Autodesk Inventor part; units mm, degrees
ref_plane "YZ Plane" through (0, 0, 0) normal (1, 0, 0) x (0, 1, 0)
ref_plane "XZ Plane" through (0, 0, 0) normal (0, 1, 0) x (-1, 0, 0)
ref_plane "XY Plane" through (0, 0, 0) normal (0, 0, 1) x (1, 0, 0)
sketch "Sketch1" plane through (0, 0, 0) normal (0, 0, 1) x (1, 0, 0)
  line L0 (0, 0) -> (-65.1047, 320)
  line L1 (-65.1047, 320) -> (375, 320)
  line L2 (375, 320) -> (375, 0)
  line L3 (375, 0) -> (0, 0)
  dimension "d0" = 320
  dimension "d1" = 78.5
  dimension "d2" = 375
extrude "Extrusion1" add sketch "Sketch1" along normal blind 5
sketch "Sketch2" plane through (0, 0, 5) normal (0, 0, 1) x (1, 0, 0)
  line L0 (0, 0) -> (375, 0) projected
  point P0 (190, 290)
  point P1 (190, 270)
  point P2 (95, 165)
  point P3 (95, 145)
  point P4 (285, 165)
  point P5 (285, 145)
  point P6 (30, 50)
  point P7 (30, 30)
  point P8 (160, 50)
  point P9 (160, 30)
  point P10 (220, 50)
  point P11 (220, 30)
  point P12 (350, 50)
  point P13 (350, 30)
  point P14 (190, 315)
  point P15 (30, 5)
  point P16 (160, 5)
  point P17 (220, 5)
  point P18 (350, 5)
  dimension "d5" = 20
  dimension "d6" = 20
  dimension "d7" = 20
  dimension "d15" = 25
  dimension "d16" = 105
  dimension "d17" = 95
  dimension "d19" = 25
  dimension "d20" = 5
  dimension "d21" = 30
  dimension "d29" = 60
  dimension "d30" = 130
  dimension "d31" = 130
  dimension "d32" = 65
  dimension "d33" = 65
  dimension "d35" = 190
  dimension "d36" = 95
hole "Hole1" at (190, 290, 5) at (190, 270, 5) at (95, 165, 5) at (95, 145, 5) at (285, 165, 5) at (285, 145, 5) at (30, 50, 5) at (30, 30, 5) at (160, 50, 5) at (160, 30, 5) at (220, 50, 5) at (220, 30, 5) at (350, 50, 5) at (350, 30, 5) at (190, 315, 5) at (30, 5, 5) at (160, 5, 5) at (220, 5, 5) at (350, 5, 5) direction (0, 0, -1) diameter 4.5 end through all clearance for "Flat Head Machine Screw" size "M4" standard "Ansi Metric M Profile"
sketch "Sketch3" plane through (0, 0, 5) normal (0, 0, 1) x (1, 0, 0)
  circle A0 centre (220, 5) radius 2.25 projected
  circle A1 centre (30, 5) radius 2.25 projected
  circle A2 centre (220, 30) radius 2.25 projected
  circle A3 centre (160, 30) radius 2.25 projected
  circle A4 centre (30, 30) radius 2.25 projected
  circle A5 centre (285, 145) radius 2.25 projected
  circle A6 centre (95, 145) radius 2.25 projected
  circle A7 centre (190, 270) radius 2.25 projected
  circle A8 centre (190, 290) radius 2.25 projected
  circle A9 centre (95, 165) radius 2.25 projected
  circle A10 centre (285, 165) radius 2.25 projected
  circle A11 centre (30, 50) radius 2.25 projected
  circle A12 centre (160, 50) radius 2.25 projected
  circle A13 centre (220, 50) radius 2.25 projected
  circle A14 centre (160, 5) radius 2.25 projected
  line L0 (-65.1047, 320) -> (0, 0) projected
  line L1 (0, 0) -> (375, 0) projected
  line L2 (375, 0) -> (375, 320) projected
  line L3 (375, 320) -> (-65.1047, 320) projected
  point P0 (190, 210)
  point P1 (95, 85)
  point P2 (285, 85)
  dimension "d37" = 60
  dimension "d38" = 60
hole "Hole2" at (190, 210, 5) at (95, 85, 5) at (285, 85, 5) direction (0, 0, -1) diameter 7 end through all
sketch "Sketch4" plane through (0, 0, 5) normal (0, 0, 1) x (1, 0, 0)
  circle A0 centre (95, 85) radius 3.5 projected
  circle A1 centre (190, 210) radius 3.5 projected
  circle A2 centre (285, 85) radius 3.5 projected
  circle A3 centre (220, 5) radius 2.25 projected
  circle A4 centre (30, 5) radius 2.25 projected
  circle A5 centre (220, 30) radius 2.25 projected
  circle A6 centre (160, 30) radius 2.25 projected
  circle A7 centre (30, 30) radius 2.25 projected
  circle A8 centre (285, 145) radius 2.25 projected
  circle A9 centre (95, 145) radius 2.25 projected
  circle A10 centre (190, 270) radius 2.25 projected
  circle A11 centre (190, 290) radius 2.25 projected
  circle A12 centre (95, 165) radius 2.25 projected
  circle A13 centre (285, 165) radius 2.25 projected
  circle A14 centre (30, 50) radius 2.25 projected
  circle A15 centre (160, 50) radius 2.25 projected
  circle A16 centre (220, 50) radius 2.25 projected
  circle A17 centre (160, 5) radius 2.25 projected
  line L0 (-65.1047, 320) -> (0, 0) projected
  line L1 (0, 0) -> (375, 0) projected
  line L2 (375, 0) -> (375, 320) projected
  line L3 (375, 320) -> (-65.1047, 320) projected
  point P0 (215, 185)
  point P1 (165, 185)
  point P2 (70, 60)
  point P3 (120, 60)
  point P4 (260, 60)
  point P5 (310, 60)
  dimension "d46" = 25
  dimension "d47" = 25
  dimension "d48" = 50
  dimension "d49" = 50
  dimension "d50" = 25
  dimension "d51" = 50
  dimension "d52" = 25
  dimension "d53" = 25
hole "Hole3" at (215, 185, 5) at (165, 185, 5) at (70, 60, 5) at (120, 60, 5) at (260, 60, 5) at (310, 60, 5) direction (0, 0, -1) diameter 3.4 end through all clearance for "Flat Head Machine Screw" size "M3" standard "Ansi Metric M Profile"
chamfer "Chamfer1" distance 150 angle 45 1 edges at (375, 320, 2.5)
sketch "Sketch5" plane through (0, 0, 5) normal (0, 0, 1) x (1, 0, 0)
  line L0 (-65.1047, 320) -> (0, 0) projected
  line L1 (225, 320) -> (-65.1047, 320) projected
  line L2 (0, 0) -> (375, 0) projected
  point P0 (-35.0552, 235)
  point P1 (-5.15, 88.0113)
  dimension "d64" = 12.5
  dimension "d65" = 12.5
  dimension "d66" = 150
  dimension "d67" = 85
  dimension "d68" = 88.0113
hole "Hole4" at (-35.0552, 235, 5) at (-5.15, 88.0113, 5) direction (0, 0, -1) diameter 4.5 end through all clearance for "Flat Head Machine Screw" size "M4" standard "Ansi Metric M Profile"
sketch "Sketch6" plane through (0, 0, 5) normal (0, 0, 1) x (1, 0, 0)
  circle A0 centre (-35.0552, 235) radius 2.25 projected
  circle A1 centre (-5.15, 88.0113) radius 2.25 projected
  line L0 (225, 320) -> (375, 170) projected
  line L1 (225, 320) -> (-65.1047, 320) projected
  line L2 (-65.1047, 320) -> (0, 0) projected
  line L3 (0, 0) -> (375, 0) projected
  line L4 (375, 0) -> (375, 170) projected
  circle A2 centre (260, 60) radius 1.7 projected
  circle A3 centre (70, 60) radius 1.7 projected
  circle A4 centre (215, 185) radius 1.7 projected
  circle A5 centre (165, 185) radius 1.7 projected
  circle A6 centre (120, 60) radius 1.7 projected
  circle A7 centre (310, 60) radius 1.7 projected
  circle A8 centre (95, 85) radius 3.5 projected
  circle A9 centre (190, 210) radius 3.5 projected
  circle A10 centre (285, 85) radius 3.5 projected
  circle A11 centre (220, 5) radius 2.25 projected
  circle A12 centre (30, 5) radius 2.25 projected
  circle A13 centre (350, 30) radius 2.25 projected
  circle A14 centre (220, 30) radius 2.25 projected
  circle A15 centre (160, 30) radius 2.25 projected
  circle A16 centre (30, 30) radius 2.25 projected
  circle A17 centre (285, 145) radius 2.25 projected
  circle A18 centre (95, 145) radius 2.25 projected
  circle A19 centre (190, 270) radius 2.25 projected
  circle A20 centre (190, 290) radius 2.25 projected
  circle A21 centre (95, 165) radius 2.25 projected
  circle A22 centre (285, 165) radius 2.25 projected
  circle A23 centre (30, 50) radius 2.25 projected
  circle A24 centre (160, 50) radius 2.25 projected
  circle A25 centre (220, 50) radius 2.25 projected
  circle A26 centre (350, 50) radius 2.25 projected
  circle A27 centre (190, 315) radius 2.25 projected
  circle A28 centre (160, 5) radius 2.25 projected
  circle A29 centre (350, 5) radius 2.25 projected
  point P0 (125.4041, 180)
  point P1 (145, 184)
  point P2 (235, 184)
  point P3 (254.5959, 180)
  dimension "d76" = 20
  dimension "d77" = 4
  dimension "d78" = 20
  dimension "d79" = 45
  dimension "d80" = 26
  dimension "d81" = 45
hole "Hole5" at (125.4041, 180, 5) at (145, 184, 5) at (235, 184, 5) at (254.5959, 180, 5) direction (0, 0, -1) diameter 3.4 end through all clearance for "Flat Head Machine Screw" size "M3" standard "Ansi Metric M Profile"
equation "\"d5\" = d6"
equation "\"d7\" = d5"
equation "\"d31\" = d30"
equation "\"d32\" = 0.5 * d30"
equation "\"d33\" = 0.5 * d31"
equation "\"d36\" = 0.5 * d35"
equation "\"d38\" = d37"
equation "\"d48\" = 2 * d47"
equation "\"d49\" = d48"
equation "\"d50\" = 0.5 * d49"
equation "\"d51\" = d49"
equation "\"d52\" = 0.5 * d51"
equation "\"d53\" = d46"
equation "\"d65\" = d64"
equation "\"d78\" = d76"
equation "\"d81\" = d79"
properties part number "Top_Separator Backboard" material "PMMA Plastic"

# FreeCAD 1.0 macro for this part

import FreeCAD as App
import Part
import Sketcher
Q = App.Units.Quantity


def edges_at(feature, points):
    """Names of the edges that pass closest to the given points."""
    edges = feature.Shape.Edges
    near = lambda p: min(range(len(edges)), key=lambda i: edges[i].distToShape(Part.Vertex(*p))[0])
    return sorted({f"Edge{near(p) + 1}" for p in points})


def add_polygon(sketch, points):
    """Adds a closed chain of lines whose ends are joined by coincident constraints."""
    first, n = sketch.GeometryCount, len(points)
    for a, b in zip(points, points[1:] + points[:1]):
        sketch.addGeometry(Part.LineSegment(App.Vector(*a, 0), App.Vector(*b, 0)), False)
    for i in range(n):
        sketch.addConstraint(Sketcher.Constraint("Coincident", first + i, 2, first + (i + 1) % n, 1))

doc = App.newDocument("Part")
body = doc.addObject("PartDesign::Body", "Body")

# Sketch on XY plane
sketch1 = body.newObject("Sketcher::SketchObject", "Sketch")
sketch1.AttachmentSupport = (doc.getObject("XY_Plane"), [""])
sketch1.MapMode = "FlatFace"
add_polygon(sketch1, [(-65, 320), (0, 0), (375, 0), (375, 320)])  # lines 0-3
sketch1.addConstraint(Sketcher.Constraint("Horizontal", 1))
sketch1.addConstraint(Sketcher.Constraint("Vertical", 2))
sketch1.addConstraint(Sketcher.Constraint("Horizontal", 3))
sketch1.addConstraint(Sketcher.Constraint("Coincident", 0, 2, -1, 1))
sketch1.addConstraint(Sketcher.Constraint("DistanceX", 1, 1, 1, 2, 375.0))
sketch1.addConstraint(Sketcher.Constraint("DistanceY", 2, 1, 2, 2, 320.0))
sketch1.addConstraint(Sketcher.Constraint("Angle", 0, Q("-78.5 deg")))
pad1 = body.newObject("PartDesign::Pad", "Pad")
pad1.Profile = sketch1
pad1.Length = 5

# Sketch on XY plane
sketch2 = body.newObject("Sketcher::SketchObject", "Sketch001")
sketch2.AttachmentSupport = (doc.getObject("XY_Plane"), [""])
sketch2.MapMode = "FlatFace"
sketch2.AttachmentOffset = App.Placement(App.Vector(0, 0, 5), App.Rotation())
sketch2.addGeometry(Part.Circle(App.Vector(190, 290, 0), App.Vector(0, 0, 1), 2.2), False)
sketch2.addGeometry(Part.Circle(App.Vector(190, 270, 0), App.Vector(0, 0, 1), 2.2), False)
sketch2.addGeometry(Part.Circle(App.Vector(95, 165, 0), App.Vector(0, 0, 1), 2.2), False)
sketch2.addGeometry(Part.Circle(App.Vector(95, 145, 0), App.Vector(0, 0, 1), 2.2), False)
sketch2.addGeometry(Part.Circle(App.Vector(285, 165, 0), App.Vector(0, 0, 1), 2.2), False)
sketch2.addGeometry(Part.Circle(App.Vector(285, 145, 0), App.Vector(0, 0, 1), 2.2), False)
sketch2.addGeometry(Part.Circle(App.Vector(30, 50, 0), App.Vector(0, 0, 1), 2.2), False)
sketch2.addGeometry(Part.Circle(App.Vector(30, 30, 0), App.Vector(0, 0, 1), 2.2), False)
sketch2.addGeometry(Part.Circle(App.Vector(160, 50, 0), App.Vector(0, 0, 1), 2.2), False)
sketch2.addGeometry(Part.Circle(App.Vector(160, 30, 0), App.Vector(0, 0, 1), 2.2), False)
sketch2.addGeometry(Part.Circle(App.Vector(220, 50, 0), App.Vector(0, 0, 1), 2.2), False)
sketch2.addGeometry(Part.Circle(App.Vector(220, 30, 0), App.Vector(0, 0, 1), 2.2), False)
sketch2.addGeometry(Part.Circle(App.Vector(350, 50, 0), App.Vector(0, 0, 1), 2.2), False)
sketch2.addGeometry(Part.Circle(App.Vector(350, 30, 0), App.Vector(0, 0, 1), 2.2), False)
sketch2.addGeometry(Part.Circle(App.Vector(190, 315, 0), App.Vector(0, 0, 1), 2.2), False)
sketch2.addGeometry(Part.Circle(App.Vector(30, 5, 0), App.Vector(0, 0, 1), 2.2), False)
sketch2.addGeometry(Part.Circle(App.Vector(160, 5, 0), App.Vector(0, 0, 1), 2.2), False)
sketch2.addGeometry(Part.Circle(App.Vector(220, 5, 0), App.Vector(0, 0, 1), 2.2), False)
sketch2.addGeometry(Part.Circle(App.Vector(350, 5, 0), App.Vector(0, 0, 1), 2.2), False)
sketch2.addConstraint(Sketcher.Constraint("Equal", 0, 1))
sketch2.addConstraint(Sketcher.Constraint("Equal", 1, 2))
sketch2.addConstraint(Sketcher.Constraint("Equal", 2, 3))
sketch2.addConstraint(Sketcher.Constraint("Equal", 3, 4))
sketch2.addConstraint(Sketcher.Constraint("Equal", 4, 5))
sketch2.addConstraint(Sketcher.Constraint("Equal", 5, 6))
sketch2.addConstraint(Sketcher.Constraint("Equal", 6, 7))
sketch2.addConstraint(Sketcher.Constraint("Equal", 7, 8))
sketch2.addConstraint(Sketcher.Constraint("Equal", 8, 9))
sketch2.addConstraint(Sketcher.Constraint("Equal", 9, 10))
sketch2.addConstraint(Sketcher.Constraint("Equal", 10, 11))
sketch2.addConstraint(Sketcher.Constraint("Equal", 11, 12))
sketch2.addConstraint(Sketcher.Constraint("Equal", 12, 13))
sketch2.addConstraint(Sketcher.Constraint("Equal", 13, 14))
sketch2.addConstraint(Sketcher.Constraint("Equal", 14, 15))
sketch2.addConstraint(Sketcher.Constraint("Equal", 15, 16))
sketch2.addConstraint(Sketcher.Constraint("Equal", 16, 17))
sketch2.addConstraint(Sketcher.Constraint("Equal", 17, 18))
sketch2.addConstraint(Sketcher.Constraint("Horizontal", 2, 3, 4, 3))
sketch2.addConstraint(Sketcher.Constraint("Horizontal", 3, 3, 5, 3))
sketch2.addConstraint(Sketcher.Constraint("Horizontal", 6, 3, 8, 3))
sketch2.addConstraint(Sketcher.Constraint("Horizontal", 7, 3, 9, 3))
sketch2.addConstraint(Sketcher.Constraint("Horizontal", 8, 3, 10, 3))
sketch2.addConstraint(Sketcher.Constraint("Horizontal", 9, 3, 11, 3))
sketch2.addConstraint(Sketcher.Constraint("Horizontal", 10, 3, 12, 3))
sketch2.addConstraint(Sketcher.Constraint("Horizontal", 11, 3, 13, 3))
sketch2.addConstraint(Sketcher.Constraint("Horizontal", 15, 3, 16, 3))
sketch2.addConstraint(Sketcher.Constraint("Horizontal", 16, 3, 17, 3))
sketch2.addConstraint(Sketcher.Constraint("Horizontal", 17, 3, 18, 3))
sketch2.addConstraint(Sketcher.Constraint("Vertical", 0, 3, 1, 3))
sketch2.addConstraint(Sketcher.Constraint("Vertical", 2, 3, 3, 3))
sketch2.addConstraint(Sketcher.Constraint("Vertical", 4, 3, 5, 3))
sketch2.addConstraint(Sketcher.Constraint("Vertical", 6, 3, 7, 3))
sketch2.addConstraint(Sketcher.Constraint("Vertical", 8, 3, 9, 3))
sketch2.addConstraint(Sketcher.Constraint("Vertical", 10, 3, 11, 3))
sketch2.addConstraint(Sketcher.Constraint("Vertical", 12, 3, 13, 3))
sketch2.addConstraint(Sketcher.Constraint("Vertical", 1, 3, 14, 3))
sketch2.addConstraint(Sketcher.Constraint("Vertical", 7, 3, 15, 3))
sketch2.addConstraint(Sketcher.Constraint("Vertical", 9, 3, 16, 3))
sketch2.addConstraint(Sketcher.Constraint("Vertical", 11, 3, 17, 3))
sketch2.addConstraint(Sketcher.Constraint("Vertical", 13, 3, 18, 3))
sketch2.addConstraint(Sketcher.Constraint("Diameter", 0, 4.5))
sketch2.addConstraint(Sketcher.Constraint("DistanceX", -1, 1, 0, 3, 190.0))
sketch2.addConstraint(Sketcher.Constraint("DistanceY", -1, 1, 0, 3, 290.0))
sketch2.addConstraint(Sketcher.Constraint("DistanceY", -1, 1, 1, 3, 270.0))
sketch2.addConstraint(Sketcher.Constraint("DistanceX", -1, 1, 2, 3, 95.0))
sketch2.addConstraint(Sketcher.Constraint("DistanceY", -1, 1, 2, 3, 165.0))
sketch2.addConstraint(Sketcher.Constraint("DistanceY", -1, 1, 3, 3, 145.0))
sketch2.addConstraint(Sketcher.Constraint("DistanceX", -1, 1, 4, 3, 285.0))
sketch2.addConstraint(Sketcher.Constraint("DistanceX", -1, 1, 6, 3, 30.0))
sketch2.addConstraint(Sketcher.Constraint("DistanceY", -1, 1, 6, 3, 50.0))
sketch2.addConstraint(Sketcher.Constraint("DistanceY", -1, 1, 7, 3, 30.0))
sketch2.addConstraint(Sketcher.Constraint("DistanceX", -1, 1, 8, 3, 160.0))
sketch2.addConstraint(Sketcher.Constraint("DistanceX", -1, 1, 10, 3, 220.0))
sketch2.addConstraint(Sketcher.Constraint("DistanceX", -1, 1, 12, 3, 350.0))
sketch2.addConstraint(Sketcher.Constraint("DistanceY", -1, 1, 14, 3, 315.0))
sketch2.addConstraint(Sketcher.Constraint("DistanceY", -1, 1, 15, 3, 5.0))
doc.recompute()
hole = body.newObject("PartDesign::Hole", "Hole")
hole.Profile = sketch2
hole.ThreadType = "None"
hole.Diameter = 4.5
hole.DepthType = "ThroughAll"

# Sketch on XY plane
sketch3 = body.newObject("Sketcher::SketchObject", "Sketch002")
sketch3.AttachmentSupport = (doc.getObject("XY_Plane"), [""])
sketch3.MapMode = "FlatFace"
sketch3.AttachmentOffset = App.Placement(App.Vector(0, 0, 5), App.Rotation())
sketch3.addGeometry(Part.Circle(App.Vector(190, 210, 0), App.Vector(0, 0, 1), 3.5), False)
sketch3.addGeometry(Part.Circle(App.Vector(95, 85, 0), App.Vector(0, 0, 1), 3.5), False)
sketch3.addGeometry(Part.Circle(App.Vector(285, 85, 0), App.Vector(0, 0, 1), 3.5), False)
sketch3.addConstraint(Sketcher.Constraint("Equal", 0, 1))
sketch3.addConstraint(Sketcher.Constraint("Equal", 1, 2))
sketch3.addConstraint(Sketcher.Constraint("Horizontal", 1, 3, 2, 3))
sketch3.addConstraint(Sketcher.Constraint("Diameter", 0, 7.0))
sketch3.addConstraint(Sketcher.Constraint("DistanceX", -1, 1, 0, 3, 190.0))
sketch3.addConstraint(Sketcher.Constraint("DistanceY", -1, 1, 0, 3, 210.0))
sketch3.addConstraint(Sketcher.Constraint("DistanceX", -1, 1, 1, 3, 95.0))
sketch3.addConstraint(Sketcher.Constraint("DistanceY", -1, 1, 1, 3, 85.0))
sketch3.addConstraint(Sketcher.Constraint("DistanceX", -1, 1, 2, 3, 285.0))
doc.recompute()
hole2 = body.newObject("PartDesign::Hole", "Hole001")
hole2.Profile = sketch3
hole2.ThreadType = "None"
hole2.Diameter = 7
hole2.DepthType = "ThroughAll"

# Sketch on XY plane
sketch4 = body.newObject("Sketcher::SketchObject", "Sketch003")
sketch4.AttachmentSupport = (doc.getObject("XY_Plane"), [""])
sketch4.MapMode = "FlatFace"
sketch4.AttachmentOffset = App.Placement(App.Vector(0, 0, 5), App.Rotation())
sketch4.addGeometry(Part.Circle(App.Vector(215, 185, 0), App.Vector(0, 0, 1), 1.7), False)
sketch4.addGeometry(Part.Circle(App.Vector(165, 185, 0), App.Vector(0, 0, 1), 1.7), False)
sketch4.addGeometry(Part.Circle(App.Vector(70, 60, 0), App.Vector(0, 0, 1), 1.7), False)
sketch4.addGeometry(Part.Circle(App.Vector(120, 60, 0), App.Vector(0, 0, 1), 1.7), False)
sketch4.addGeometry(Part.Circle(App.Vector(260, 60, 0), App.Vector(0, 0, 1), 1.7), False)
sketch4.addGeometry(Part.Circle(App.Vector(310, 60, 0), App.Vector(0, 0, 1), 1.7), False)
sketch4.addConstraint(Sketcher.Constraint("Equal", 0, 1))
sketch4.addConstraint(Sketcher.Constraint("Equal", 1, 2))
sketch4.addConstraint(Sketcher.Constraint("Equal", 2, 3))
sketch4.addConstraint(Sketcher.Constraint("Equal", 3, 4))
sketch4.addConstraint(Sketcher.Constraint("Equal", 4, 5))
sketch4.addConstraint(Sketcher.Constraint("Horizontal", 0, 3, 1, 3))
sketch4.addConstraint(Sketcher.Constraint("Horizontal", 2, 3, 3, 3))
sketch4.addConstraint(Sketcher.Constraint("Horizontal", 3, 3, 4, 3))
sketch4.addConstraint(Sketcher.Constraint("Horizontal", 4, 3, 5, 3))
sketch4.addConstraint(Sketcher.Constraint("Diameter", 0, 3.4))
sketch4.addConstraint(Sketcher.Constraint("DistanceX", -1, 1, 0, 3, 215.0))
sketch4.addConstraint(Sketcher.Constraint("DistanceY", -1, 1, 0, 3, 185.0))
sketch4.addConstraint(Sketcher.Constraint("DistanceX", -1, 1, 1, 3, 165.0))
sketch4.addConstraint(Sketcher.Constraint("DistanceX", -1, 1, 2, 3, 70.0))
sketch4.addConstraint(Sketcher.Constraint("DistanceY", -1, 1, 2, 3, 60.0))
sketch4.addConstraint(Sketcher.Constraint("DistanceX", -1, 1, 3, 3, 120.0))
sketch4.addConstraint(Sketcher.Constraint("DistanceX", -1, 1, 4, 3, 260.0))
sketch4.addConstraint(Sketcher.Constraint("DistanceX", -1, 1, 5, 3, 310.0))
doc.recompute()
hole3 = body.newObject("PartDesign::Hole", "Hole002")
hole3.Profile = sketch4
hole3.ThreadType = "None"
hole3.Diameter = 3.4
hole3.DepthType = "ThroughAll"
doc.recompute()

chamfer = body.newObject("PartDesign::Chamfer", "Chamfer")
chamfer.Base = (hole3, edges_at(hole3, [(375, 320, 2.5)]))
chamfer.Size = 150

# Sketch on XY plane
sketch5 = body.newObject("Sketcher::SketchObject", "Sketch004")
sketch5.AttachmentSupport = (doc.getObject("XY_Plane"), [""])
sketch5.MapMode = "FlatFace"
sketch5.AttachmentOffset = App.Placement(App.Vector(0, 0, 5), App.Rotation())
sketch5.addGeometry(Part.Circle(App.Vector(-35.1, 235, 0), App.Vector(0, 0, 1), 2.2), False)
sketch5.addGeometry(Part.Circle(App.Vector(-5.2, 88, 0), App.Vector(0, 0, 1), 2.2), False)
sketch5.addConstraint(Sketcher.Constraint("Equal", 0, 1))
sketch5.addConstraint(Sketcher.Constraint("Diameter", 0, 4.5))
sketch5.addConstraint(Sketcher.Constraint("DistanceY", -1, 1, 0, 3, 235.0))
sketch5.addConstraint(Sketcher.Constraint("DistanceX", 1, 3, -1, 1, 5.15))
sketch5.addConstraint(Sketcher.Constraint("DistanceX", 0, 3, -1, 1, 35.0552))
sketch5.addConstraint(Sketcher.Constraint("DistanceY", -1, 1, 1, 3, 88.0113))
doc.recompute()
hole4 = body.newObject("PartDesign::Hole", "Hole003")
hole4.Profile = sketch5
hole4.ThreadType = "None"
hole4.Diameter = 4.5
hole4.DepthType = "ThroughAll"

# Sketch on XY plane
sketch6 = body.newObject("Sketcher::SketchObject", "Sketch005")
sketch6.AttachmentSupport = (doc.getObject("XY_Plane"), [""])
sketch6.MapMode = "FlatFace"
sketch6.AttachmentOffset = App.Placement(App.Vector(0, 0, 5), App.Rotation())
sketch6.addGeometry(Part.Circle(App.Vector(125.4, 180, 0), App.Vector(0, 0, 1), 1.7), False)
sketch6.addGeometry(Part.Circle(App.Vector(145, 184, 0), App.Vector(0, 0, 1), 1.7), False)
sketch6.addGeometry(Part.Circle(App.Vector(235, 184, 0), App.Vector(0, 0, 1), 1.7), False)
sketch6.addGeometry(Part.Circle(App.Vector(254.6, 180, 0), App.Vector(0, 0, 1), 1.7), False)
sketch6.addConstraint(Sketcher.Constraint("Equal", 0, 1))
sketch6.addConstraint(Sketcher.Constraint("Equal", 1, 2))
sketch6.addConstraint(Sketcher.Constraint("Equal", 2, 3))
sketch6.addConstraint(Sketcher.Constraint("Horizontal", 1, 3, 2, 3))
sketch6.addConstraint(Sketcher.Constraint("Horizontal", 0, 3, 3, 3))
sketch6.addConstraint(Sketcher.Constraint("Diameter", 0, 3.4))
sketch6.addConstraint(Sketcher.Constraint("DistanceY", -1, 1, 0, 3, 180.0))
sketch6.addConstraint(Sketcher.Constraint("DistanceX", -1, 1, 1, 3, 145.0))
sketch6.addConstraint(Sketcher.Constraint("DistanceY", -1, 1, 1, 3, 184.0))
sketch6.addConstraint(Sketcher.Constraint("DistanceX", -1, 1, 2, 3, 235.0))
sketch6.addConstraint(Sketcher.Constraint("DistanceX", -1, 1, 0, 3, 125.404))
sketch6.addConstraint(Sketcher.Constraint("DistanceX", -1, 1, 3, 3, 254.596))
doc.recompute()
hole5 = body.newObject("PartDesign::Hole", "Hole004")
hole5.Profile = sketch6
hole5.ThreadType = "None"
hole5.Diameter = 3.4
hole5.DepthType = "ThroughAll"

doc.recompute()
